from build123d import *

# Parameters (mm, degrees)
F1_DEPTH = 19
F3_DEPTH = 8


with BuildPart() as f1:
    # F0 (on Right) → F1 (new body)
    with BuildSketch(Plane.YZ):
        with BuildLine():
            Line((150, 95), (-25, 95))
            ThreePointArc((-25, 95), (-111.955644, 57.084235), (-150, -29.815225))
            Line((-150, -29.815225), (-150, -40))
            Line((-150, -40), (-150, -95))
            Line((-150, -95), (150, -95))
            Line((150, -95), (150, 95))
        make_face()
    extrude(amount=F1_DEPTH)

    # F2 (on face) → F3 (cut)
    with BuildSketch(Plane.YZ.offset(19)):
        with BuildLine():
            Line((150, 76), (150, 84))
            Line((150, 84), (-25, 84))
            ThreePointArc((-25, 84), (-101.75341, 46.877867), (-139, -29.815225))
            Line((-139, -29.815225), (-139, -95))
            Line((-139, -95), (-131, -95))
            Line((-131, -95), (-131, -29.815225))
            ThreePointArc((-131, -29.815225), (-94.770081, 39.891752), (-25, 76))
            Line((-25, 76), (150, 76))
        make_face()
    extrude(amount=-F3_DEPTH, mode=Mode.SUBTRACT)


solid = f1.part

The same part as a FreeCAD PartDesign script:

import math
import FreeCAD as App
import Part
import Sketcher

doc = App.newDocument("Part")
body = doc.addObject("PartDesign::Body", "Body")

# Sketch on YZ plane
sketch1 = body.newObject("Sketcher::SketchObject", "Sketch")
sketch1.AttachmentSupport = (doc.getObject("YZ_Plane"), [""])
sketch1.MapMode = "FlatFace"
sketch1.addGeometry(Part.LineSegment(App.Vector(150, 95, 0), App.Vector(-25, 95, 0)), False)
sketch1.addGeometry(Part.ArcOfCircle(Part.Circle(App.Vector(-20, -35, 0), App.Vector(0, 0, 1), 130), math.radians(92), math.radians(178)), False)
sketch1.addGeometry(Part.LineSegment(App.Vector(-150, -30, 0), App.Vector(-150, -95, 0)), False)
sketch1.addGeometry(Part.LineSegment(App.Vector(-150, -95, 0), App.Vector(150, -95, 0)), False)
sketch1.addGeometry(Part.LineSegment(App.Vector(150, -95, 0), App.Vector(150, 95, 0)), False)
sketch1.addConstraint(Sketcher.Constraint("Coincident", 0, 2, 1, 1))
sketch1.addConstraint(Sketcher.Constraint("Coincident", 1, 2, 2, 1))
sketch1.addConstraint(Sketcher.Constraint("Coincident", 2, 2, 3, 1))
sketch1.addConstraint(Sketcher.Constraint("Coincident", 3, 2, 4, 1))
sketch1.addConstraint(Sketcher.Constraint("Coincident", 4, 2, 0, 1))
sketch1.addConstraint(Sketcher.Constraint("Horizontal", 0))
sketch1.addConstraint(Sketcher.Constraint("Vertical", 2))
sketch1.addConstraint(Sketcher.Constraint("Horizontal", 3))
sketch1.addConstraint(Sketcher.Constraint("Vertical", 4))
sketch1.addConstraint(Sketcher.Constraint("Symmetric", 2, 2, 4, 2, -1, 1))
sketch1.addConstraint(Sketcher.Constraint("Radius", 1, 129.999999))
sketch1.addConstraint(Sketcher.Constraint("DistanceX", 0, 2, 0, 1, 175.0))
sketch1.addConstraint(Sketcher.Constraint("DistanceX", 3, 1, 3, 2, 300.0))
sketch1.addConstraint(Sketcher.Constraint("DistanceY", 4, 1, 4, 2, 190.0))
sketch1.addConstraint(Sketcher.Constraint("DistanceY", 2, 2, 2, 1, 65.184775))
pad1 = body.newObject("PartDesign::Pad", "Pad")
pad1.Profile = sketch1
pad1.Length = 19

# Sketch on YZ plane
sketch2 = body.newObject("Sketcher::SketchObject", "Sketch001")
sketch2.AttachmentSupport = (doc.getObject("YZ_Plane"), [""])
sketch2.MapMode = "FlatFace"
sketch2.AttachmentOffset = App.Placement(App.Vector(0, 0, 19), App.Rotation())
sketch2.addGeometry(Part.LineSegment(App.Vector(150, 76, 0), App.Vector(150, 84, 0)), False)
sketch2.addGeometry(Part.LineSegment(App.Vector(150, 84, 0), App.Vector(-25, 84, 0)), False)
sketch2.addGeometry(Part.ArcOfCircle(Part.Circle(App.Vector(-10, -45, 0), App.Vector(0, 0, 1), 130), math.radians(97), math.radians(173)), False)
sketch2.addGeometry(Part.LineSegment(App.Vector(-139, -30, 0), App.Vector(-139, -95, 0)), False)
sketch2.addGeometry(Part.LineSegment(App.Vector(-139, -95, 0), App.Vector(-131, -95, 0)), False)
sketch2.addGeometry(Part.LineSegment(App.Vector(-131, -95, 0), App.Vector(-131, -30, 0)), False)
sketch2.addGeometry(Part.ArcOfCircle(Part.Circle(App.Vector(-3, -52, 0), App.Vector(0, 0, 1), 130), math.radians(100), math.radians(170)), False)
sketch2.addGeometry(Part.LineSegment(App.Vector(-25, 76, 0), App.Vector(150, 76, 0)), False)
sketch2.addConstraint(Sketcher.Constraint("Coincident", 0, 2, 1, 1))
sketch2.addConstraint(Sketcher.Constraint("Coincident", 1, 2, 2, 1))
sketch2.addConstraint(Sketcher.Constraint("Coincident", 2, 2, 3, 1))
sketch2.addConstraint(Sketcher.Constraint("Coincident", 3, 2, 4, 1))
sketch2.addConstraint(Sketcher.Constraint("Coincident", 4, 2, 5, 1))
sketch2.addConstraint(Sketcher.Constraint("Coincident", 5, 2, 6, 2))
sketch2.addConstraint(Sketcher.Constraint("Coincident", 6, 1, 7, 1))
sketch2.addConstraint(Sketcher.Constraint("Coincident", 7, 2, 0, 1))
sketch2.addConstraint(Sketcher.Constraint("Vertical", 0))
sketch2.addConstraint(Sketcher.Constraint("Horizontal", 1))
sketch2.addConstraint(Sketcher.Constraint("Vertical", 3))
sketch2.addConstraint(Sketcher.Constraint("Horizontal", 4))
sketch2.addConstraint(Sketcher.Constraint("Vertical", 5))
sketch2.addConstraint(Sketcher.Constraint("Horizontal", 7))
sketch2.addConstraint(Sketcher.Constraint("Equal", 2, 6))
sketch2.addConstraint(Sketcher.Constraint("Horizontal", 2, 2, 5, 2))
sketch2.addConstraint(Sketcher.Constraint("Vertical", 1, 2, 6, 1))
sketch2.addConstraint(Sketcher.Constraint("Equal", 4, 0))
sketch2.addConstraint(Sketcher.Constraint("Radius", 2, 130.0))
sketch2.addConstraint(Sketcher.Constraint("DistanceX", 1, 2, 1, 1, 175.0))
sketch2.addConstraint(Sketcher.Constraint("DistanceX", 4, 1, 4, 2, 8.0))
sketch2.addConstraint(Sketcher.Constraint("DistanceX", -1, 1, 0, 2, 150.0))
sketch2.addConstraint(Sketcher.Constraint("DistanceY", -1, 1, 0, 2, 84.0))
sketch2.addConstraint(Sketcher.Constraint("DistanceX", 2, 2, -1, 1, 139.0))
sketch2.addConstraint(Sketcher.Constraint("DistanceY", 3, 2, -1, 1, 95.0))
sketch2.addConstraint(Sketcher.Constraint("DistanceY", 3, 2, 3, 1, 65.184775))
pocket1 = body.newObject("PartDesign::Pocket", "Pocket")
pocket1.Profile = sketch2
pocket1.Length = 8

doc.recompute()
